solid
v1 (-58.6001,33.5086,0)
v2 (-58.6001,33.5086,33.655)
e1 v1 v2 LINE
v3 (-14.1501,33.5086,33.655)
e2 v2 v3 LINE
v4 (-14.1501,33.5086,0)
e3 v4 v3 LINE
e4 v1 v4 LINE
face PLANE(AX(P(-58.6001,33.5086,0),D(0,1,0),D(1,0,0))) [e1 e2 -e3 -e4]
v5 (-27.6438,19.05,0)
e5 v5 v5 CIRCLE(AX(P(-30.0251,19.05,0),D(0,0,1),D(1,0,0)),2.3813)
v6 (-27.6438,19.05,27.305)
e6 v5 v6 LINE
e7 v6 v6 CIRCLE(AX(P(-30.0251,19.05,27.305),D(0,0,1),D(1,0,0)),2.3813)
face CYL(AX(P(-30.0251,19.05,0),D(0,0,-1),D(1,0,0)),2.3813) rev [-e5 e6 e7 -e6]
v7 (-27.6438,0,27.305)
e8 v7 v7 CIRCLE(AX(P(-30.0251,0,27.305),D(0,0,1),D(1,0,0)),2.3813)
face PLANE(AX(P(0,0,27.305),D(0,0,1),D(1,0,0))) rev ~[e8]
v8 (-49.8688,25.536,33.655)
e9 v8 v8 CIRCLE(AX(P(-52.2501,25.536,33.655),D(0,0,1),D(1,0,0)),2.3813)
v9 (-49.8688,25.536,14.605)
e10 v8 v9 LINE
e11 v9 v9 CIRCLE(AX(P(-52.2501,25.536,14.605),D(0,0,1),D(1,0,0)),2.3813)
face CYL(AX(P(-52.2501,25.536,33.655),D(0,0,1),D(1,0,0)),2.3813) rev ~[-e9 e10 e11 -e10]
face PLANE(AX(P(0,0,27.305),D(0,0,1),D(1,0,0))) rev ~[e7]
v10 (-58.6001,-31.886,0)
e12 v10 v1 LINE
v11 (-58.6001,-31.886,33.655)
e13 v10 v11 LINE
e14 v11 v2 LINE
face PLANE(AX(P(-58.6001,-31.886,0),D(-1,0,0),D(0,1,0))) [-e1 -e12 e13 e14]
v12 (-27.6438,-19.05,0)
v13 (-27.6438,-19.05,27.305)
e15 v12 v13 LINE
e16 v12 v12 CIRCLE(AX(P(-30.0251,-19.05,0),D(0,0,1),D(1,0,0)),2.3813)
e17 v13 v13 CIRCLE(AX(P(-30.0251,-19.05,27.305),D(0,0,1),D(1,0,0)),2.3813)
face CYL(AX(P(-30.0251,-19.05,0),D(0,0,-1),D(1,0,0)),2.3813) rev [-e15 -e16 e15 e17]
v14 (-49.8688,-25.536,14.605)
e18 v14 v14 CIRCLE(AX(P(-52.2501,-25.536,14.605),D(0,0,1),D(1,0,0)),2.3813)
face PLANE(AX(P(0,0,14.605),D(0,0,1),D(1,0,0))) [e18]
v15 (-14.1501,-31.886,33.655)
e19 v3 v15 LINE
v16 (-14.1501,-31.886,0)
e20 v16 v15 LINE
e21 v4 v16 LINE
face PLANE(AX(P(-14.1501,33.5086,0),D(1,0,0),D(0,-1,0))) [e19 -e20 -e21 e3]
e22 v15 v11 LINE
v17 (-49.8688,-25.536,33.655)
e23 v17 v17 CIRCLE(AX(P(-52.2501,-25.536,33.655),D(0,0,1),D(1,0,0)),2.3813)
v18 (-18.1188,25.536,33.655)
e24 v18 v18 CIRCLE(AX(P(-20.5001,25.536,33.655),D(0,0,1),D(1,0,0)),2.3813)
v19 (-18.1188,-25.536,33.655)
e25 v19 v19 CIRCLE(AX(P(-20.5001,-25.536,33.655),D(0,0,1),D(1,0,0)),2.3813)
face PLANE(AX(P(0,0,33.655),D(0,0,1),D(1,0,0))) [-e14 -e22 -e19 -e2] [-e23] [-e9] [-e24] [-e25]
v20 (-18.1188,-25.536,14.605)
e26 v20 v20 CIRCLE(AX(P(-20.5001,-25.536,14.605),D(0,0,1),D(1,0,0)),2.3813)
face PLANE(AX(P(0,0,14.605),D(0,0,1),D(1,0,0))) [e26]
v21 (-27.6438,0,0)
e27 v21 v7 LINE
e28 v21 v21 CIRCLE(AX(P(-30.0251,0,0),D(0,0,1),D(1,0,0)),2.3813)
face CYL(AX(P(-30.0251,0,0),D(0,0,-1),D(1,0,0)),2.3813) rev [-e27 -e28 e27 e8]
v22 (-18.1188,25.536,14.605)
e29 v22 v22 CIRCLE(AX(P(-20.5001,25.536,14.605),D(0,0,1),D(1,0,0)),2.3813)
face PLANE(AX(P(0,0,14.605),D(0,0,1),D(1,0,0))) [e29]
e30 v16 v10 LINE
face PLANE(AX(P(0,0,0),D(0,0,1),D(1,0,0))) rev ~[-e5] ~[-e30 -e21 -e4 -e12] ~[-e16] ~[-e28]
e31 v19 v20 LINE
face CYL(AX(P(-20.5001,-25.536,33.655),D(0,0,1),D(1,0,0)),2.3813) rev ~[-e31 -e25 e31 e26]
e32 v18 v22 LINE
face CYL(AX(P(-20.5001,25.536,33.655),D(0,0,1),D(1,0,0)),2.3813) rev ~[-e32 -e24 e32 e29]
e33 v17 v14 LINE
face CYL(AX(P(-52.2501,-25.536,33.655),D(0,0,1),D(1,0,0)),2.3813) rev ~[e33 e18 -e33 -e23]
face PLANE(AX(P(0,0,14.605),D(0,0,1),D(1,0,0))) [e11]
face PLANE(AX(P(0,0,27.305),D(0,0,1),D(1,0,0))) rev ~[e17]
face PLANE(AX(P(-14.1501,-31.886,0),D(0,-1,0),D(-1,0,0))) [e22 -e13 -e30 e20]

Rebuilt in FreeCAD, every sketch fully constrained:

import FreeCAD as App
import Part
import Sketcher

V = App.Vector
Q = App.Units.Quantity


def add_polygon(sketch, points):
    """Adds a closed chain of lines whose ends are joined by coincident constraints."""
    first, n = sketch.GeometryCount, len(points)
    for a, b in zip(points, points[1:] + points[:1]):
        sketch.addGeometry(Part.LineSegment(App.Vector(*a, 0), App.Vector(*b, 0)), False)
    for i in range(n):
        sketch.addConstraint(Sketcher.Constraint("Coincident", first + i, 2, first + (i + 1) % n, 1))

doc = App.newDocument("Part")
body = doc.addObject("PartDesign::Body", "Body")

# Sketch on XY plane
sketch1 = body.newObject("Sketcher::SketchObject", "Sketch")
sketch1.AttachmentSupport = (doc.getObject("XY_Plane"), [""])
sketch1.MapMode = "FlatFace"
add_polygon(sketch1, [(-58.6, -31.9), (-14.2, -31.9), (-14.2, 33.5), (-58.6, 33.5)])  # lines 0-3
sketch1.addGeometry(Part.Circle(V(-30, -19.1, 0), V(0, 0, 1), 2.4), False)  # 4
sketch1.addGeometry(Part.Circle(V(-30, 0, 0), V(0, 0, 1), 2.4), False)  # 5
sketch1.addGeometry(Part.Circle(V(-30, 19.1, 0), V(0, 0, 1), 2.4), False)  # 6
sketch1.addConstraint([
    Sketcher.Constraint("Horizontal", 0),
    Sketcher.Constraint("Vertical", 1),
    Sketcher.Constraint("Horizontal", 2),
    Sketcher.Constraint("Vertical", 3),
    Sketcher.Constraint("Equal", 4, 5),
    Sketcher.Constraint("Equal", 5, 6),
    Sketcher.Constraint("Symmetric", 4, 3, 6, 3, -1),
    Sketcher.Constraint("PointOnObject", 5, 3, -1),
    Sketcher.Constraint("Vertical", 4, 3, 5, 3),
    Sketcher.Constraint("Diameter", 4, Q("0.1875 in")),
    Sketcher.Constraint("DistanceX", 4, 3, 0, 2, Q("0.625 in")),
    Sketcher.Constraint("DistanceX", 2, 2, 6, 3, Q("1.125 in")),
    Sketcher.Constraint("DistanceY", 4, 3, 6, 3, Q("1.5 in")),
    Sketcher.Constraint("DistanceY", 1, 1, 1, 2, Q("2.5746 in")),
    Sketcher.Constraint("DistanceX", 4, 3, -1, 1, Q("1.1821 in")),
    Sketcher.Constraint("DistanceY", 0, 2, -1, 1, Q("31.886 mm")),
])
pad1 = body.newObject("PartDesign::Pad", "Pad")
pad1.Profile = sketch1
pad1.Length = Q("1.325 in")

# Sketch on XY plane
sketch2 = body.newObject("Sketcher::SketchObject", "Sketch001")
sketch2.AttachmentSupport = (doc.getObject("XY_Plane"), [""])
sketch2.MapMode = "FlatFace"
sketch2.AttachmentOffset = App.Placement(V(0, 0, 1.325 * 25.4), App.Rotation())
sketch2.addGeometry([
    Part.Circle(V(-30, -19.1, 0), V(0, 0, 1), 2.4),
    Part.Circle(V(-30, 0, 0), V(0, 0, 1), 2.4),
    Part.Circle(V(-30, 19.1, 0), V(0, 0, 1), 2.4),
], False)
sketch2.addConstraint([
    Sketcher.Constraint("Equal", 0, 1),
    Sketcher.Constraint("Equal", 1, 2),
    Sketcher.Constraint("Symmetric", 0, 3, 2, 3, -1),
    Sketcher.Constraint("PointOnObject", 1, 3, -1),
    Sketcher.Constraint("Vertical", 0, 3, 1, 3),
    Sketcher.Constraint("Diameter", 0, Q("0.1875 in")),
    Sketcher.Constraint("DistanceY", 0, 3, 2, 3, Q("1.5 in")),
    Sketcher.Constraint("DistanceX", 0, 3, -1, 1, Q("1.1821 in")),
])
pad2 = body.newObject("PartDesign::Pad", "Pad001")
pad2.Profile = sketch2
pad2.Length = Q("0.25 in")
pad2.Reversed = True

# Sketch on XY plane
sketch3 = body.newObject("Sketcher::SketchObject", "Sketch002")
sketch3.AttachmentSupport = (doc.getObject("XY_Plane"), [""])
sketch3.MapMode = "FlatFace"
sketch3.AttachmentOffset = App.Placement(V(0, 0, 1.325 * 25.4), App.Rotation())
sketch3.addGeometry([
    Part.Circle(V(-52.3, -25.5, 0), V(0, 0, 1), 2.4),
    Part.Circle(V(-52.3, 25.5, 0), V(0, 0, 1), 2.4),
    Part.Circle(V(-20.5, -25.5, 0), V(0, 0, 1), 2.4),
    Part.Circle(V(-20.5, 25.5, 0), V(0, 0, 1), 2.4),
], False)
sketch3.addConstraint([
    Sketcher.Constraint("Equal", 0, 1),
    Sketcher.Constraint("Equal", 1, 2),
    Sketcher.Constraint("Equal", 2, 3),
    Sketcher.Constraint("Symmetric", 0, 3, 1, 3, -1),
    Sketcher.Constraint("Symmetric", 2, 3, 3, 3, -1),
    Sketcher.Constraint("Horizontal", 0, 3, 2, 3),
    Sketcher.Constraint("Diameter", 0, Q("0.1875 in")),
    Sketcher.Constraint("DistanceX", 0, 3, 2, 3, Q("1.25 in")),
    Sketcher.Constraint("DistanceX", 0, 3, -1, 1, Q("2.0571 in")),
    Sketcher.Constraint("DistanceY", 0, 3, 1, 3, Q("2.0107 in")),
])
pocket1 = body.newObject("PartDesign::Pocket", "Pocket")
pocket1.Profile = sketch3
pocket1.Length = Q("0.75 in")

doc.recompute()
